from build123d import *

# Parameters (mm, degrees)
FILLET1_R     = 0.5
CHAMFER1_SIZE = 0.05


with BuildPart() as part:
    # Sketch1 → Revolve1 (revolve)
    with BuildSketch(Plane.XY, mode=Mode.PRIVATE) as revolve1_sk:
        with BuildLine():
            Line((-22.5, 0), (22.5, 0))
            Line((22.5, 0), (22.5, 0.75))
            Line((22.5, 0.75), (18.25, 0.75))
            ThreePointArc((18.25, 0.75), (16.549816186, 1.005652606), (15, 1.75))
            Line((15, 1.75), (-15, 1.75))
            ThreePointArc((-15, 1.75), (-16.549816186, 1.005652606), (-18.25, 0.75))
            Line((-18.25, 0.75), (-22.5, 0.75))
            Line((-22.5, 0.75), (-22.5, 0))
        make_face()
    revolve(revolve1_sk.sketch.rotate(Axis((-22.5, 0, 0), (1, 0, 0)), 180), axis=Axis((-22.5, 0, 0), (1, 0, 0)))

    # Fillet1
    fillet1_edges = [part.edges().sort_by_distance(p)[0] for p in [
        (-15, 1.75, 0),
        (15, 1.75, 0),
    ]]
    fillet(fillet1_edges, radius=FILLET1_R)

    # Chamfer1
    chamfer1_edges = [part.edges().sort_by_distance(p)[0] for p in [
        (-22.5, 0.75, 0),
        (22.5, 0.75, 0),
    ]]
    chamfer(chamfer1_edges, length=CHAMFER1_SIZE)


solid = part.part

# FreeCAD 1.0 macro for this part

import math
import FreeCAD as App
import Part
import Sketcher
from FreeCAD import Vector


def edges_at(feature, points):
    """Names of the edges that pass closest to the given points."""
    edges = feature.Shape.Edges
    near = lambda p: min(range(len(edges)), key=lambda i: edges[i].distToShape(Part.Vertex(*p))[0])
    return sorted({f"Edge{near(p) + 1}" for p in points})

doc = App.newDocument("Part")
body = doc.addObject("PartDesign::Body", "Body")

# Sketch on XY plane
sketch1 = doc.addObject("Sketcher::SketchObject", "Sketch")
body.addObject(sketch1)
sketch1.AttachmentSupport = (doc.XY_Plane, [""])
sketch1.MapMode = "FlatFace"
sketch1.addGeometry([
    Part.LineSegment(Vector(-22.5, 0, 0), Vector(22.5, 0, 0)),  # 0
    Part.LineSegment(Vector(22.5, 0, 0), Vector(22.5, 0.8, 0)),  # 1
    Part.LineSegment(Vector(22.5, 0.8, 0), Vector(18.2, 0.8, 0)),  # 2
    Part.ArcOfCircle(Part.Circle(Vector(18.2, 6.5, 0), Vector(0, 0, 1), 5.8), math.radians(-124), math.radians(-90)),  # 3
    Part.LineSegment(Vector(15, 1.8, 0), Vector(-15, 1.8, 0)),  # 4
    Part.ArcOfCircle(Part.Circle(Vector(-18.2, 6.5, 0), Vector(0, 0, 1), 5.8), math.radians(-90), math.radians(-56)),  # 5
    Part.LineSegment(Vector(-18.2, 0.8, 0), Vector(-22.5, 0.8, 0)),  # 6
    Part.LineSegment(Vector(-22.5, 0.8, 0), Vector(-22.5, 0, 0)),  # 7
], False)
sketch1.addConstraint([
    Sketcher.Constraint("Coincident", 0, 2, 1, 1),
    Sketcher.Constraint("Coincident", 1, 2, 2, 1),
    Sketcher.Constraint("Tangent", 2, 2, 3, 2),
    Sketcher.Constraint("Coincident", 3, 1, 4, 1),
    Sketcher.Constraint("Coincident", 4, 2, 5, 2),
    Sketcher.Constraint("Tangent", 5, 1, 6, 1),
    Sketcher.Constraint("Coincident", 6, 2, 7, 1),
    Sketcher.Constraint("Coincident", 7, 2, 0, 1),
    Sketcher.Constraint("Horizontal", 0),
    Sketcher.Constraint("Vertical", 1),
    Sketcher.Constraint("Horizontal", 2),
    Sketcher.Constraint("Horizontal", 4),
    Sketcher.Constraint("Horizontal", 6),
    Sketcher.Constraint("Vertical", 7),
    Sketcher.Constraint("Equal", 3, 5),
    Sketcher.Constraint("Symmetric", 0, 2, 7, 2, -1, 1),
    Sketcher.Constraint("Symmetric", 3, 3, 5, 3, -2),
    Sketcher.Constraint("DistanceX", 0, 1, 0, 2, 45.0),
    Sketcher.Constraint("DistanceX", 4, 2, 4, 1, 30.0),
    Sketcher.Constraint("DistanceY", 2, 2, 3, 1, 1.0),
    Sketcher.Constraint("DistanceX", 2, 2, 2, 1, 4.25),
    Sketcher.Constraint("DistanceY", 1, 1, 1, 2, 0.75),
])
revolution = doc.addObject("PartDesign::Revolution", "Revolution")
body.addObject(revolution)
revolution.Profile = sketch1
revolution.ReferenceAxis = (sketch1, ["H_Axis"])
revolution.Angle = 360
doc.recompute()

fillet = doc.addObject("PartDesign::Fillet", "Fillet")
body.addObject(fillet)
fillet.Base = (revolution, edges_at(revolution, [(-15, 1.75, 0), (15, 1.75, 0)]))
fillet.Radius = 0.5
doc.recompute()

chamfer = doc.addObject("PartDesign::Chamfer", "Chamfer")
body.addObject(chamfer)
chamfer.Base = (fillet, edges_at(fillet, [(-22.5, 0.75, 0), (22.5, 0.75, 0)]))
chamfer.Size = 0.05

doc.recompute()
